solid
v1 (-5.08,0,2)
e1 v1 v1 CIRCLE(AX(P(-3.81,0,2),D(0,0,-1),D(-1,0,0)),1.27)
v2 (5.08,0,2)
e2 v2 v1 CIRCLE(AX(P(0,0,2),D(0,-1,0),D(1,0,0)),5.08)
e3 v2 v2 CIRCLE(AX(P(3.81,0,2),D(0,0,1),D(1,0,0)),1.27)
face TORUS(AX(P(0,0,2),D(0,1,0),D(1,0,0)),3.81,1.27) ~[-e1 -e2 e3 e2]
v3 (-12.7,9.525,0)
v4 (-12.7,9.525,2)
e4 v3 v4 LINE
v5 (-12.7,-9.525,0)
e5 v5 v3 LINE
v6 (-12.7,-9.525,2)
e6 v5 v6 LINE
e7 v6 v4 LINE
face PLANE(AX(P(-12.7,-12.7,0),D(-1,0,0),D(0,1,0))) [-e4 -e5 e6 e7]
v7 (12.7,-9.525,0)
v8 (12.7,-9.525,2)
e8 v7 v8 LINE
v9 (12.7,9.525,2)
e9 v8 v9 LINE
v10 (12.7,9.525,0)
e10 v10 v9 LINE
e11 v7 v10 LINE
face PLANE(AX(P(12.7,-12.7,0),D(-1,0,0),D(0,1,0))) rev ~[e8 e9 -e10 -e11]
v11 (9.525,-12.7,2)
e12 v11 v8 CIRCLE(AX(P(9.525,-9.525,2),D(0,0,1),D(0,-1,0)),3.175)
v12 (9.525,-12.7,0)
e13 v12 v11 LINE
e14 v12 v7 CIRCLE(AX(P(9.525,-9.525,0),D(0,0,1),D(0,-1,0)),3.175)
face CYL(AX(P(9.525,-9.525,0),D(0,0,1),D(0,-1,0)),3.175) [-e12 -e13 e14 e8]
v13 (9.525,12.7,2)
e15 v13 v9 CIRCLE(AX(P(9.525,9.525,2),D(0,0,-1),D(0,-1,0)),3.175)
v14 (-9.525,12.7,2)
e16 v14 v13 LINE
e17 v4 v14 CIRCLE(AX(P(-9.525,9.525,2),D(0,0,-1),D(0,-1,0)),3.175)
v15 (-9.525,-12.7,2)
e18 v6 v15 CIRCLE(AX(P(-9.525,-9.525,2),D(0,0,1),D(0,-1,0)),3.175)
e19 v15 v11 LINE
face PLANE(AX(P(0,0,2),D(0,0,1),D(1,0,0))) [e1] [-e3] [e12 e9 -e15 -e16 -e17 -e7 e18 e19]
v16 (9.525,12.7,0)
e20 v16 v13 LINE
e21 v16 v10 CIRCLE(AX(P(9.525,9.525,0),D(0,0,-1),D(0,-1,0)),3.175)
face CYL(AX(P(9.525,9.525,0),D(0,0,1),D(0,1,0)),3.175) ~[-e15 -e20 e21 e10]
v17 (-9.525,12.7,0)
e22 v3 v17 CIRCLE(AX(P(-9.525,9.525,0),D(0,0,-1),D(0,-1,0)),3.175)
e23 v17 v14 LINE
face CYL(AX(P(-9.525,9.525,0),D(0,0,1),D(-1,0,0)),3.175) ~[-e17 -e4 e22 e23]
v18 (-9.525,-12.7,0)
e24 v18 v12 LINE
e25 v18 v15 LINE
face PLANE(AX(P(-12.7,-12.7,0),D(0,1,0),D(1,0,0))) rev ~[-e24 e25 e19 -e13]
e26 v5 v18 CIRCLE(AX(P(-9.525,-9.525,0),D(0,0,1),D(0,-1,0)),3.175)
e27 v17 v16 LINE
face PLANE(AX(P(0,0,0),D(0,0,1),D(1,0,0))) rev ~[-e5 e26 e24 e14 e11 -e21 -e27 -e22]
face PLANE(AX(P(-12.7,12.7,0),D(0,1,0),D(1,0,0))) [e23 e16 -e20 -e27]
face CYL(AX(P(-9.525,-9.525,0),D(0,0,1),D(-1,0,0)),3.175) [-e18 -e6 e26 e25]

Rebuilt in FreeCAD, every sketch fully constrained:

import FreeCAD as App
import Part
import Sketcher

V = App.Vector
Q = App.Units.Quantity


def edges_at(feature, points):
    """Names of the edges that pass closest to the given points."""
    edges = feature.Shape.Edges
    near = lambda p: min(range(len(edges)), key=lambda i: edges[i].distToShape(Part.Vertex(*p))[0])
    return sorted({f"Edge{near(p) + 1}" for p in points})


def add_polygon(sketch, points):
    """Adds a closed chain of lines whose ends are joined by coincident constraints."""
    first, n = sketch.GeometryCount, len(points)
    for a, b in zip(points, points[1:] + points[:1]):
        sketch.addGeometry(Part.LineSegment(App.Vector(*a, 0), App.Vector(*b, 0)), False)
    for i in range(n):
        sketch.addConstraint(Sketcher.Constraint("Coincident", first + i, 2, first + (i + 1) % n, 1))

doc = App.newDocument("Part")
params = doc.addObject("Spreadsheet::Sheet", "Params")
for row, (alias, value) in enumerate([
    ("sketch1_width", "1 in"),
    ("pad1_length", "2 mm"),
    ("sketch2_diameter", "0.1 in"),
    ("revolution_angle", "180 deg"),
    ("fillet_radius", "0.125 in"),
], start=1):
    params.set(f"A{row}", alias)
    params.set(f"B{row}", "=" + value)
    params.setAlias(f"B{row}", alias)

body = doc.addObject("PartDesign::Body", "Body")

# Sketch on XY plane
sketch1 = body.newObject("Sketcher::SketchObject", "Sketch")
sketch1.AttachmentSupport = (doc.getObject("XY_Plane"), [""])
sketch1.MapMode = "FlatFace"
add_polygon(sketch1, [(-13, 13), (-13, -13), (13, -13), (13, 13)])  # lines 0-3
sketch1.addConstraint([
    Sketcher.Constraint("Vertical", 0),
    Sketcher.Constraint("Horizontal", 1),
    Sketcher.Constraint("Vertical", 2),
    Sketcher.Constraint("Horizontal", 3),
    Sketcher.Constraint("Symmetric", 0, 2, 2, 2, -1, 1),
    Sketcher.Constraint("Equal", 3, 0),
    Sketcher.Constraint("DistanceX", 1, 1, 1, 2, Q("1 in")),
])
sketch1.setExpression("Constraints[10]", "Params.sketch1_width")
pad1 = body.newObject("PartDesign::Pad", "Pad")
pad1.Profile = sketch1
pad1.setExpression("Length", "Params.pad1_length")

# Sketch on XY plane
sketch2 = body.newObject("Sketcher::SketchObject", "Sketch001")
sketch2.AttachmentSupport = (doc.getObject("XY_Plane"), [""])
sketch2.MapMode = "FlatFace"
sketch2.AttachmentOffset = App.Placement(V(0, 0, 2), App.Rotation())
sketch2.addGeometry(Part.Circle(V(3.8, 0, 0), V(0, 0, 1), 1.3), False)
sketch2.addConstraint([
    Sketcher.Constraint("PointOnObject", 0, 3, -1),
    Sketcher.Constraint("Diameter", 0, Q("0.1 in")),
    Sketcher.Constraint("DistanceX", -1, 1, 0, 3, Q("0.15 in")),
])
sketch2.setExpression("Constraints[1]", "Params.sketch2_diameter")
revolution = body.newObject("PartDesign::Revolution", "Revolution")
revolution.Profile = sketch2
revolution.ReferenceAxis = (sketch2, ["V_Axis"])
revolution.setExpression("Angle", "Params.revolution_angle")
revolution.Reversed = True
doc.recompute()

fillet = body.newObject("PartDesign::Fillet", "Fillet")
fillet.Base = (revolution, edges_at(revolution, [
    (12.7, -12.7, 1),
    (-12.7, -12.7, 1),
    (-12.7, 12.7, 1),
    (12.7, 12.7, 1),
]))
fillet.setExpression("Radius", "Params.fillet_radius")

doc.recompute()
